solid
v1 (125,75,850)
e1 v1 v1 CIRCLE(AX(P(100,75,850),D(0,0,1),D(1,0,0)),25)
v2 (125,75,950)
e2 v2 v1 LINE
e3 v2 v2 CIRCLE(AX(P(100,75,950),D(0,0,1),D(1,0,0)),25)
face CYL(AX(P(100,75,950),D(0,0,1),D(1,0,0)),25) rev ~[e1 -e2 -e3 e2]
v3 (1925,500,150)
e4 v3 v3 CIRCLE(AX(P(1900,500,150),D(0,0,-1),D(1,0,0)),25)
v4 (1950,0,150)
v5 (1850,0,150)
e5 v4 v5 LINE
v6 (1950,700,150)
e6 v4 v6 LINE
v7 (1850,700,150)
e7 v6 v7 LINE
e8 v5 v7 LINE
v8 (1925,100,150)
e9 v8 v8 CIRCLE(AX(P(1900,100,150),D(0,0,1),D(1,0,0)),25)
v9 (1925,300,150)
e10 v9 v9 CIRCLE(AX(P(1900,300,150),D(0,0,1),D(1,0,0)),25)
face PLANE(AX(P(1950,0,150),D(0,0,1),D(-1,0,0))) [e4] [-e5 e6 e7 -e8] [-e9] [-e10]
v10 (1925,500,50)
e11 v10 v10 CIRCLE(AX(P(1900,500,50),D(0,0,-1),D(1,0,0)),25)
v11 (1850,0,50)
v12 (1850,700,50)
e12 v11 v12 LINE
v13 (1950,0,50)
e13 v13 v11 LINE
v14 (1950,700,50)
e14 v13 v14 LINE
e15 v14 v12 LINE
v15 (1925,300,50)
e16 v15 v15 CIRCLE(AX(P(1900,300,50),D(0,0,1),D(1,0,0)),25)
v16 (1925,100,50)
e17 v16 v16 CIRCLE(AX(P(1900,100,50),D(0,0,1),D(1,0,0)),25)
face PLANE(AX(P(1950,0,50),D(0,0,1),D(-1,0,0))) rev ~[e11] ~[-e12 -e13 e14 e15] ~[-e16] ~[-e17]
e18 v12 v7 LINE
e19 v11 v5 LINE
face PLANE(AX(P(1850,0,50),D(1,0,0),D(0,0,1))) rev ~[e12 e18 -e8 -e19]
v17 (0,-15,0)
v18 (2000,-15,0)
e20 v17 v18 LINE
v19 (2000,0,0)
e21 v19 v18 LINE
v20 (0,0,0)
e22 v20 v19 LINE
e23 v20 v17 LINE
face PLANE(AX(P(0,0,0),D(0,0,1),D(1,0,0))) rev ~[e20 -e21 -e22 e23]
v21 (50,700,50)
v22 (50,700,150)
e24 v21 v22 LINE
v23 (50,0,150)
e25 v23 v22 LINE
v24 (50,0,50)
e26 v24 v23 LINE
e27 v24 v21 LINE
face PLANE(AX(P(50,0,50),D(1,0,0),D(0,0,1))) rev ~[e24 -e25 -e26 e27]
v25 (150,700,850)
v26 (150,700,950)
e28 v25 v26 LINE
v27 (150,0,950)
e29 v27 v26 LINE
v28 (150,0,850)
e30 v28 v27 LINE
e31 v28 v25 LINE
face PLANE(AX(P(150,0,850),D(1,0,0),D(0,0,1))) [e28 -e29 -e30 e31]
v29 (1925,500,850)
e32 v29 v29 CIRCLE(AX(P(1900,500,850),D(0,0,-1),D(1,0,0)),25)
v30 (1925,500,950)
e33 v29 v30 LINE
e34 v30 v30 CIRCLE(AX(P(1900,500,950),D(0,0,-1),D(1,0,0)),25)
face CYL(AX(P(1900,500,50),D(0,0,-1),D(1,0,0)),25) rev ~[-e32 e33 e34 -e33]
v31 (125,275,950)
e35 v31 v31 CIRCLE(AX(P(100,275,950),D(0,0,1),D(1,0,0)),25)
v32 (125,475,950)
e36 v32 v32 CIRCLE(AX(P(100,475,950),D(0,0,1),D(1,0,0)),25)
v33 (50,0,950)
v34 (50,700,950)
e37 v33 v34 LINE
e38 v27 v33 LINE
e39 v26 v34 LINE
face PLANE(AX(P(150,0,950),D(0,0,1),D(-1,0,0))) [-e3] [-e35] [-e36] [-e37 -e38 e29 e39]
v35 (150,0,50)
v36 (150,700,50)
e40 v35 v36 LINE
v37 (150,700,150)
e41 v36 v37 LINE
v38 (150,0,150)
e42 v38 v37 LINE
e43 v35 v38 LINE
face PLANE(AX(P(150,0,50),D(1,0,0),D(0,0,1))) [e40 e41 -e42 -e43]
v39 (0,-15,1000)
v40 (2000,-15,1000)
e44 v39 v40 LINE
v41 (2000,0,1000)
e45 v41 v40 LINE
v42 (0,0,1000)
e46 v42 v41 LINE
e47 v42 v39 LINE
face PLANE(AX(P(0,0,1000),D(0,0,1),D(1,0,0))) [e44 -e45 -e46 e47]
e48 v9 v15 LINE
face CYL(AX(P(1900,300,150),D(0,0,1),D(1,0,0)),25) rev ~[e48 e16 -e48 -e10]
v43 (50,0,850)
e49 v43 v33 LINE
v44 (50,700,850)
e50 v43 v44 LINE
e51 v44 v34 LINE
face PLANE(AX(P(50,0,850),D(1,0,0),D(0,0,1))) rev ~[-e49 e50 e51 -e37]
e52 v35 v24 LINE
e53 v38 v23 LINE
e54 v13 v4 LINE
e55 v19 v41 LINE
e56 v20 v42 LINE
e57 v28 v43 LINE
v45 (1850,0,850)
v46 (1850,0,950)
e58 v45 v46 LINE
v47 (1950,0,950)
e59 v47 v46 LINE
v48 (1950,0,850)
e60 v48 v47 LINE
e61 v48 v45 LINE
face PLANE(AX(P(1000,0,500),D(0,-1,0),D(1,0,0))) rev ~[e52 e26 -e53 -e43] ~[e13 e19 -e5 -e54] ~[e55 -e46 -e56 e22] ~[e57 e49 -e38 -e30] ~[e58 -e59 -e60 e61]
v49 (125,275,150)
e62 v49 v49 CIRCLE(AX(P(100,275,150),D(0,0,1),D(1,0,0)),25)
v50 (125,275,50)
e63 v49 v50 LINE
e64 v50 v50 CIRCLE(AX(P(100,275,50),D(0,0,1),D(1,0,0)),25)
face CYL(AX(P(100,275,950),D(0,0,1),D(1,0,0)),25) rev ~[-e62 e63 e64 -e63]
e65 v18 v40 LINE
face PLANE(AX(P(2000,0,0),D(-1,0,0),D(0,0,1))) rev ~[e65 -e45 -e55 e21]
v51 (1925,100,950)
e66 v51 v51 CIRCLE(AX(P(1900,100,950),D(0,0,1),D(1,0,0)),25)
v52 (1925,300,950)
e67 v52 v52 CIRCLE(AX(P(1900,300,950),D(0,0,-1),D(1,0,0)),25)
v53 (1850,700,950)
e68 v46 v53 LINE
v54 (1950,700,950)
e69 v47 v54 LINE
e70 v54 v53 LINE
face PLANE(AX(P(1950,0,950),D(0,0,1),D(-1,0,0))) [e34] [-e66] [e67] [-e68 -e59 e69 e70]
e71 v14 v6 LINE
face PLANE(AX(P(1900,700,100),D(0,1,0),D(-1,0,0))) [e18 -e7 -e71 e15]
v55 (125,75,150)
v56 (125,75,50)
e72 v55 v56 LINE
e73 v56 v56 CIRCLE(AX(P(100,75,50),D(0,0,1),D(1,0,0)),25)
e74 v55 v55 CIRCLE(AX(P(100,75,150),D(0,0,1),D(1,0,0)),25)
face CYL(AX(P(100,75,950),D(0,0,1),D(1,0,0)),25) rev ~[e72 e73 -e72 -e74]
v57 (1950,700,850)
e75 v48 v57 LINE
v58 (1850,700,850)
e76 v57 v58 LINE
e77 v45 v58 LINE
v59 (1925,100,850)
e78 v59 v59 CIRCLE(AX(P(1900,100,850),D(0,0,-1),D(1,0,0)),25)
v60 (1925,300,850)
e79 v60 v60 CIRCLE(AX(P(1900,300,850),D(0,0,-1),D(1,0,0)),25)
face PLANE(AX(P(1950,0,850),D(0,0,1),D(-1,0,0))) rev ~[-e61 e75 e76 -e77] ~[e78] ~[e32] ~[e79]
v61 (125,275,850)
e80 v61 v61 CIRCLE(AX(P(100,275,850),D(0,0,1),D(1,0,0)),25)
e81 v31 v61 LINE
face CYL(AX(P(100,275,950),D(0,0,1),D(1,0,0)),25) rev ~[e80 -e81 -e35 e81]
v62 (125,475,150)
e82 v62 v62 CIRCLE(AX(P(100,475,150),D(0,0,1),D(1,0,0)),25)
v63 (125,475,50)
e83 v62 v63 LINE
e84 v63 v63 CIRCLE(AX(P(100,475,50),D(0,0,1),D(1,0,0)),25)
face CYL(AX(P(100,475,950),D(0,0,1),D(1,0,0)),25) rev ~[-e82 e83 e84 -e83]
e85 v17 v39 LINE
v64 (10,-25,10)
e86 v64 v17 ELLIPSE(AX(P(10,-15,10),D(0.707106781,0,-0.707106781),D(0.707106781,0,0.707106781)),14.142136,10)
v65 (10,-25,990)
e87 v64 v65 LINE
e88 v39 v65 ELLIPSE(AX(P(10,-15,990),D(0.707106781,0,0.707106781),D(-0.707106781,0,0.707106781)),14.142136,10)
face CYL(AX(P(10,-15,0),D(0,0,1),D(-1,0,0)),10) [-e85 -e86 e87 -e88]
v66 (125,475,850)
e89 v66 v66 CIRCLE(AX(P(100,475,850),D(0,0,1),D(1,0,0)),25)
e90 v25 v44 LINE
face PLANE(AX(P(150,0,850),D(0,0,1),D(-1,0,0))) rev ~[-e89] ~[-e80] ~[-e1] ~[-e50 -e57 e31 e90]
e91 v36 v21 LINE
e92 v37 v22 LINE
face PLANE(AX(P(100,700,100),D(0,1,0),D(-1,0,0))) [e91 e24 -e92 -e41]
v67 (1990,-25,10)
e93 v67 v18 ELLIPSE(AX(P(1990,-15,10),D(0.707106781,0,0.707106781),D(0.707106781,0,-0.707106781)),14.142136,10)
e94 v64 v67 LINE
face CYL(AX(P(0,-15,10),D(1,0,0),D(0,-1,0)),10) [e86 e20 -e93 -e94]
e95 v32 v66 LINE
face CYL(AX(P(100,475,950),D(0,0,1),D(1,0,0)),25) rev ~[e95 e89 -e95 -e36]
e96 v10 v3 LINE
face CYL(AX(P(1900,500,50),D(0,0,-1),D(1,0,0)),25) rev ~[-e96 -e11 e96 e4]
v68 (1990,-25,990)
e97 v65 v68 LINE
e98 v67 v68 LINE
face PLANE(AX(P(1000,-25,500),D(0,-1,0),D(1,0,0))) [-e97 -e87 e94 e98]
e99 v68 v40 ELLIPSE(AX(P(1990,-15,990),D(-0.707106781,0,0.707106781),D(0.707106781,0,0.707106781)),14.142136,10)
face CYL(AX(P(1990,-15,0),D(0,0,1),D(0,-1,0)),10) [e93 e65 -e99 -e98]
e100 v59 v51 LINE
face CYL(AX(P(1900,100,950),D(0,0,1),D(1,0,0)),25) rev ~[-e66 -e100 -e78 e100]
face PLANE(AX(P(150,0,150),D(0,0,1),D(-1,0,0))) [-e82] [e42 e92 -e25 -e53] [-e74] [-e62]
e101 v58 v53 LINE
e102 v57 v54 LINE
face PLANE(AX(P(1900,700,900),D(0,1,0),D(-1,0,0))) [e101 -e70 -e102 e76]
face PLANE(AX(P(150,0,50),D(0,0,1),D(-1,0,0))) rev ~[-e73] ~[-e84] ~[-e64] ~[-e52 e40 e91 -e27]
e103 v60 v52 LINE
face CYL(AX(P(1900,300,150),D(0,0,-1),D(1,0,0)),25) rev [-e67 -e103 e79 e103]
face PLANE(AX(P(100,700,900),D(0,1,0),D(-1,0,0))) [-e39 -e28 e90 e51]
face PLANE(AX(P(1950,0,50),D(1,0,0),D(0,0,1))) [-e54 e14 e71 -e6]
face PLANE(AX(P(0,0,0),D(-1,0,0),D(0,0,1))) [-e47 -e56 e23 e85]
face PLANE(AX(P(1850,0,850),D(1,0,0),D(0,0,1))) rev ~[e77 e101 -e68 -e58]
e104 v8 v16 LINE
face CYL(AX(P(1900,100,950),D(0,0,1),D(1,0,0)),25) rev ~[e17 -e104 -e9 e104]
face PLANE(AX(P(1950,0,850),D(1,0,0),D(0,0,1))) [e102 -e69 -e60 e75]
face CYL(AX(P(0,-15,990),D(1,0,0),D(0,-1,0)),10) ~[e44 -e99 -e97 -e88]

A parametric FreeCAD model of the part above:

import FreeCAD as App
import Part
import Sketcher
Q = App.Units.Quantity


def edges_at(feature, points):
    """Names of the edges that pass closest to the given points."""
    edges = feature.Shape.Edges
    near = lambda p: min(range(len(edges)), key=lambda i: edges[i].distToShape(Part.Vertex(*p))[0])
    return sorted({f"Edge{near(p) + 1}" for p in points})


def add_polygon(sketch, points):
    """Adds a closed chain of lines whose ends are joined by coincident constraints."""
    first, n = sketch.GeometryCount, len(points)
    for a, b in zip(points, points[1:] + points[:1]):
        sketch.addGeometry(Part.LineSegment(App.Vector(*a, 0), App.Vector(*b, 0)), False)
    for i in range(n):
        sketch.addConstraint(Sketcher.Constraint("Coincident", first + i, 2, first + (i + 1) % n, 1))

doc = App.newDocument("Part")
params = doc.addObject("Spreadsheet::Sheet", "Params")
for row, (alias, value) in enumerate([
    ("sketch1_width", "2000 mm"),
    ("sketch1_height", "1000 mm"),
    ("pad1_length", "25 mm"),
    ("sketch2_width", "100 mm"),
    ("pad2_length", "700 mm"),
    ("sketch3_diameter", "50 mm"),
    ("pocket1_length", "2819 mm"),
    ("sketch4_diameter", "50 mm"),
    ("pocket2_length", "2080 mm"),
    ("sketch5_diameter", "50 mm"),
    ("pocket3_length", "773 mm"),
    ("sketch6_diameter", "50 mm"),
    ("pocket4_length", "1331 mm"),
    ("sketch7_diameter", "50 mm"),
    ("pocket5_length", "1200 mm"),
    ("sketch8_diameter", "50 mm"),
    ("pocket6_length", "1300 mm"),
    ("sketch9_diameter", "50 mm"),
    ("pocket7_length", "338 mm"),
    ("sketch10_diameter", "50 mm"),
    ("pocket8_length", "1300 mm"),
    ("fillet_radius", "10 mm"),
], start=1):
    params.set(f"A{row}", alias)
    params.set(f"B{row}", "=" + value)
    params.setAlias(f"B{row}", alias)

body = doc.addObject("PartDesign::Body", "Body")

# Sketch on XZ plane
sketch1 = body.newObject("Sketcher::SketchObject", "Sketch")
sketch1.AttachmentSupport = (doc.getObject("XZ_Plane"), [""])
sketch1.MapMode = "FlatFace"
add_polygon(sketch1, [(0, 1000), (0, 0), (2000, 0), (2000, 1000)])  # lines 0-3
sketch1.addConstraint([
    Sketcher.Constraint("Vertical", 0),
    Sketcher.Constraint("Horizontal", 1),
    Sketcher.Constraint("Vertical", 2),
    Sketcher.Constraint("Horizontal", 3),
    Sketcher.Constraint("Coincident", 0, 2, -1, 1),
    Sketcher.Constraint("DistanceX", 1, 1, 1, 2, Q("2000 mm")),
    Sketcher.Constraint("DistanceY", 0, 2, 0, 1, Q("1000 mm")),
])
sketch1.setExpression("Constraints[9]", "Params.sketch1_width")
sketch1.setExpression("Constraints[10]", "Params.sketch1_height")
pad1 = body.newObject("PartDesign::Pad", "Pad")
pad1.Profile = sketch1
pad1.setExpression("Length", "Params.pad1_length")

# Sketch on XZ plane
sketch2 = body.newObject("Sketcher::SketchObject", "Sketch001")
sketch2.AttachmentSupport = (doc.getObject("XZ_Plane"), [""])
sketch2.MapMode = "FlatFace"
add_polygon(sketch2, [(1950, 150), (1950, 50), (1850, 50), (1850, 150)])  # lines 0-3
add_polygon(sketch2, [(150, 150), (150, 50), (50, 50), (50, 150)])  # lines 4-7
add_polygon(sketch2, [(1950, 950), (1950, 850), (1850, 850), (1850, 950)])  # lines 8-11
add_polygon(sketch2, [(150, 950), (150, 850), (50, 850), (50, 950)])  # lines 12-15
sketch2.addConstraint([
    Sketcher.Constraint("Vertical", 0),
    Sketcher.Constraint("Horizontal", 1),
    Sketcher.Constraint("Vertical", 2),
    Sketcher.Constraint("Horizontal", 3),
    Sketcher.Constraint("Vertical", 4),
    Sketcher.Constraint("Horizontal", 5),
    Sketcher.Constraint("Vertical", 6),
    Sketcher.Constraint("Horizontal", 7),
    Sketcher.Constraint("Vertical", 8),
    Sketcher.Constraint("Horizontal", 9),
    Sketcher.Constraint("Vertical", 10),
    Sketcher.Constraint("Horizontal", 11),
    Sketcher.Constraint("Vertical", 12),
    Sketcher.Constraint("Horizontal", 13),
    Sketcher.Constraint("Vertical", 14),
    Sketcher.Constraint("Horizontal", 15),
    Sketcher.Constraint("Horizontal", 1, 2, 4, 2),
    Sketcher.Constraint("Horizontal", 3, 2, 6, 2),
    Sketcher.Constraint("Horizontal", 9, 2, 12, 2),
    Sketcher.Constraint("Horizontal", 11, 2, 14, 2),
    Sketcher.Constraint("Vertical", 3, 2, 8, 2),
    Sketcher.Constraint("Vertical", 2, 2, 9, 2),
    Sketcher.Constraint("Vertical", 7, 2, 12, 2),
    Sketcher.Constraint("Vertical", 6, 2, 13, 2),
    Sketcher.Constraint("Equal", 3, 5),
    Sketcher.Constraint("Equal", 15, 0),
    Sketcher.Constraint("Equal", 6, 8),
    Sketcher.Constraint("DistanceX", 1, 2, 1, 1, Q("100 mm")),
    Sketcher.Constraint("DistanceX", -1, 1, 0, 2, Q("1950 mm")),
    Sketcher.Constraint("DistanceY", -1, 1, 0, 2, Q("50 mm")),
    Sketcher.Constraint("DistanceX", -1, 1, 4, 2, Q("150 mm")),
    Sketcher.Constraint("DistanceY", -1, 1, 8, 2, Q("850 mm")),
])
sketch2.setExpression("Constraints[43]", "Params.sketch2_width")
pad2 = body.newObject("PartDesign::Pad", "Pad001")
pad2.Profile = sketch2
pad2.setExpression("Length", "Params.pad2_length")
pad2.Reversed = True

# Sketch on XY plane
sketch3 = body.newObject("Sketcher::SketchObject", "Sketch002")
sketch3.AttachmentSupport = (doc.getObject("XY_Plane"), [""])
sketch3.MapMode = "FlatFace"
sketch3.AttachmentOffset = App.Placement(App.Vector(0, 0, 50), App.Rotation())
sketch3.addGeometry(Part.Circle(App.Vector(1900, 500, 0), App.Vector(0, 0, 1), 25), False)
sketch3.addConstraint([
    Sketcher.Constraint("Diameter", 0, Q("50 mm")),
    Sketcher.Constraint("DistanceX", -1, 1, 0, 3, Q("1900 mm")),
    Sketcher.Constraint("DistanceY", -1, 1, 0, 3, Q("500 mm")),
])
sketch3.setExpression("Constraints[0]", "Params.sketch3_diameter")
pocket1 = body.newObject("PartDesign::Pocket", "Pocket")
pocket1.Profile = sketch3
pocket1.setExpression("Length", "Params.pocket1_length")
pocket1.Reversed = True

# Sketch on XY plane
sketch4 = body.newObject("Sketcher::SketchObject", "Sketch003")
sketch4.AttachmentSupport = (doc.getObject("XY_Plane"), [""])
sketch4.MapMode = "FlatFace"
sketch4.AttachmentOffset = App.Placement(App.Vector(0, 0, 150), App.Rotation())
sketch4.addGeometry(Part.Circle(App.Vector(1900, 300, 0), App.Vector(0, 0, 1), 25), False)
sketch4.addConstraint([
    Sketcher.Constraint("Diameter", 0, Q("50 mm")),
    Sketcher.Constraint("DistanceX", -1, 1, 0, 3, Q("1900 mm")),
    Sketcher.Constraint("DistanceY", -1, 1, 0, 3, Q("300 mm")),
])
sketch4.setExpression("Constraints[0]", "Params.sketch4_diameter")
pocket2 = body.newObject("PartDesign::Pocket", "Pocket001")
pocket2.Profile = sketch4
pocket2.setExpression("Length", "Params.pocket2_length")
pocket2.Reversed = True

# Sketch on XY plane
sketch5 = body.newObject("Sketcher::SketchObject", "Sketch004")
sketch5.AttachmentSupport = (doc.getObject("XY_Plane"), [""])
sketch5.MapMode = "FlatFace"
sketch5.AttachmentOffset = App.Placement(App.Vector(0, 0, 150), App.Rotation())
sketch5.addGeometry(Part.Circle(App.Vector(1900, 100, 0), App.Vector(0, 0, 1), 25), False)
sketch5.addConstraint([
    Sketcher.Constraint("Diameter", 0, Q("50 mm")),
    Sketcher.Constraint("DistanceX", -1, 1, 0, 3, Q("1900 mm")),
    Sketcher.Constraint("DistanceY", -1, 1, 0, 3, Q("100 mm")),
])
sketch5.setExpression("Constraints[0]", "Params.sketch5_diameter")
pocket3 = body.newObject("PartDesign::Pocket", "Pocket002")
pocket3.Profile = sketch5
pocket3.setExpression("Length", "Params.pocket3_length")
pocket3.Reversed = True

# Sketch on XY plane
sketch6 = body.newObject("Sketcher::SketchObject", "Sketch005")
sketch6.AttachmentSupport = (doc.getObject("XY_Plane"), [""])
sketch6.MapMode = "FlatFace"
sketch6.AttachmentOffset = App.Placement(App.Vector(0, 0, 950), App.Rotation())
sketch6.addGeometry(Part.Circle(App.Vector(100, 475, 0), App.Vector(0, 0, 1), 25), False)
sketch6.addConstraint([
    Sketcher.Constraint("Diameter", 0, Q("50 mm")),
    Sketcher.Constraint("DistanceX", -1, 1, 0, 3, Q("100 mm")),
    Sketcher.Constraint("DistanceY", -1, 1, 0, 3, Q("475 mm")),
])
sketch6.setExpression("Constraints[0]", "Params.sketch6_diameter")
pocket4 = body.newObject("PartDesign::Pocket", "Pocket003")
pocket4.Profile = sketch6
pocket4.setExpression("Length", "Params.pocket4_length")

# Sketch on XY plane
sketch7 = body.newObject("Sketcher::SketchObject", "Sketch006")
sketch7.AttachmentSupport = (doc.getObject("XY_Plane"), [""])
sketch7.MapMode = "FlatFace"
sketch7.AttachmentOffset = App.Placement(App.Vector(0, 0, 950), App.Rotation())
sketch7.addGeometry(Part.Circle(App.Vector(100, 275, 0), App.Vector(0, 0, 1), 25), False)
sketch7.addConstraint([
    Sketcher.Constraint("Diameter", 0, Q("50 mm")),
    Sketcher.Constraint("DistanceX", -1, 1, 0, 3, Q("100 mm")),
    Sketcher.Constraint("DistanceY", -1, 1, 0, 3, Q("275 mm")),
])
sketch7.setExpression("Constraints[0]", "Params.sketch7_diameter")
pocket5 = body.newObject("PartDesign::Pocket", "Pocket004")
pocket5.Profile = sketch7
pocket5.setExpression("Length", "Params.pocket5_length")

# Sketch on XY plane
sketch8 = body.newObject("Sketcher::SketchObject", "Sketch007")
sketch8.AttachmentSupport = (doc.getObject("XY_Plane"), [""])
sketch8.MapMode = "FlatFace"
sketch8.AttachmentOffset = App.Placement(App.Vector(0, 0, 950), App.Rotation())
sketch8.addGeometry(Part.Circle(App.Vector(100, 75, 0), App.Vector(0, 0, 1), 25), False)
sketch8.addConstraint([
    Sketcher.Constraint("Diameter", 0, Q("50 mm")),
    Sketcher.Constraint("DistanceX", -1, 1, 0, 3, Q("100 mm")),
    Sketcher.Constraint("DistanceY", -1, 1, 0, 3, Q("75 mm")),
])
sketch8.setExpression("Constraints[0]", "Params.sketch8_diameter")
pocket6 = body.newObject("PartDesign::Pocket", "Pocket005")
pocket6.Profile = sketch8
pocket6.setExpression("Length", "Params.pocket6_length")

# Sketch on XY plane
sketch9 = body.newObject("Sketcher::SketchObject", "Sketch008")
sketch9.AttachmentSupport = (doc.getObject("XY_Plane"), [""])
sketch9.MapMode = "FlatFace"
sketch9.AttachmentOffset = App.Placement(App.Vector(0, 0, 150), App.Rotation())
sketch9.addGeometry(Part.Circle(App.Vector(1900, 300, 0), App.Vector(0, 0, 1), 25), False)
sketch9.addConstraint([
    Sketcher.Constraint("Diameter", 0, Q("50 mm")),
    Sketcher.Constraint("DistanceX", -1, 1, 0, 3, Q("1900 mm")),
    Sketcher.Constraint("DistanceY", -1, 1, 0, 3, Q("300 mm")),
])
sketch9.setExpression("Constraints[0]", "Params.sketch9_diameter")
pocket7 = body.newObject("PartDesign::Pocket", "Pocket006")
pocket7.Profile = sketch9
pocket7.setExpression("Length", "Params.pocket7_length")

# Sketch on XY plane
sketch10 = body.newObject("Sketcher::SketchObject", "Sketch009")
sketch10.AttachmentSupport = (doc.getObject("XY_Plane"), [""])
sketch10.MapMode = "FlatFace"
sketch10.AttachmentOffset = App.Placement(App.Vector(0, 0, 950), App.Rotation())
sketch10.addGeometry(Part.Circle(App.Vector(1900, 100, 0), App.Vector(0, 0, 1), 25), False)
sketch10.addConstraint([
    Sketcher.Constraint("Diameter", 0, Q("50 mm")),
    Sketcher.Constraint("DistanceX", -1, 1, 0, 3, Q("1900 mm")),
    Sketcher.Constraint("DistanceY", -1, 1, 0, 3, Q("100 mm")),
])
sketch10.setExpression("Constraints[0]", "Params.sketch10_diameter")
pocket8 = body.newObject("PartDesign::Pocket", "Pocket007")
pocket8.Profile = sketch10
pocket8.setExpression("Length", "Params.pocket8_length")
doc.recompute()

fillet = body.newObject("PartDesign::Fillet", "Fillet")
fillet.Base = (pocket8, edges_at(pocket8, [
    (1000, -25, 0),
    (0, -25, 500),
    (1000, -25, 1000),
    (2000, -25, 500),
]))
fillet.setExpression("Radius", "Params.fillet_radius")

doc.recompute()
